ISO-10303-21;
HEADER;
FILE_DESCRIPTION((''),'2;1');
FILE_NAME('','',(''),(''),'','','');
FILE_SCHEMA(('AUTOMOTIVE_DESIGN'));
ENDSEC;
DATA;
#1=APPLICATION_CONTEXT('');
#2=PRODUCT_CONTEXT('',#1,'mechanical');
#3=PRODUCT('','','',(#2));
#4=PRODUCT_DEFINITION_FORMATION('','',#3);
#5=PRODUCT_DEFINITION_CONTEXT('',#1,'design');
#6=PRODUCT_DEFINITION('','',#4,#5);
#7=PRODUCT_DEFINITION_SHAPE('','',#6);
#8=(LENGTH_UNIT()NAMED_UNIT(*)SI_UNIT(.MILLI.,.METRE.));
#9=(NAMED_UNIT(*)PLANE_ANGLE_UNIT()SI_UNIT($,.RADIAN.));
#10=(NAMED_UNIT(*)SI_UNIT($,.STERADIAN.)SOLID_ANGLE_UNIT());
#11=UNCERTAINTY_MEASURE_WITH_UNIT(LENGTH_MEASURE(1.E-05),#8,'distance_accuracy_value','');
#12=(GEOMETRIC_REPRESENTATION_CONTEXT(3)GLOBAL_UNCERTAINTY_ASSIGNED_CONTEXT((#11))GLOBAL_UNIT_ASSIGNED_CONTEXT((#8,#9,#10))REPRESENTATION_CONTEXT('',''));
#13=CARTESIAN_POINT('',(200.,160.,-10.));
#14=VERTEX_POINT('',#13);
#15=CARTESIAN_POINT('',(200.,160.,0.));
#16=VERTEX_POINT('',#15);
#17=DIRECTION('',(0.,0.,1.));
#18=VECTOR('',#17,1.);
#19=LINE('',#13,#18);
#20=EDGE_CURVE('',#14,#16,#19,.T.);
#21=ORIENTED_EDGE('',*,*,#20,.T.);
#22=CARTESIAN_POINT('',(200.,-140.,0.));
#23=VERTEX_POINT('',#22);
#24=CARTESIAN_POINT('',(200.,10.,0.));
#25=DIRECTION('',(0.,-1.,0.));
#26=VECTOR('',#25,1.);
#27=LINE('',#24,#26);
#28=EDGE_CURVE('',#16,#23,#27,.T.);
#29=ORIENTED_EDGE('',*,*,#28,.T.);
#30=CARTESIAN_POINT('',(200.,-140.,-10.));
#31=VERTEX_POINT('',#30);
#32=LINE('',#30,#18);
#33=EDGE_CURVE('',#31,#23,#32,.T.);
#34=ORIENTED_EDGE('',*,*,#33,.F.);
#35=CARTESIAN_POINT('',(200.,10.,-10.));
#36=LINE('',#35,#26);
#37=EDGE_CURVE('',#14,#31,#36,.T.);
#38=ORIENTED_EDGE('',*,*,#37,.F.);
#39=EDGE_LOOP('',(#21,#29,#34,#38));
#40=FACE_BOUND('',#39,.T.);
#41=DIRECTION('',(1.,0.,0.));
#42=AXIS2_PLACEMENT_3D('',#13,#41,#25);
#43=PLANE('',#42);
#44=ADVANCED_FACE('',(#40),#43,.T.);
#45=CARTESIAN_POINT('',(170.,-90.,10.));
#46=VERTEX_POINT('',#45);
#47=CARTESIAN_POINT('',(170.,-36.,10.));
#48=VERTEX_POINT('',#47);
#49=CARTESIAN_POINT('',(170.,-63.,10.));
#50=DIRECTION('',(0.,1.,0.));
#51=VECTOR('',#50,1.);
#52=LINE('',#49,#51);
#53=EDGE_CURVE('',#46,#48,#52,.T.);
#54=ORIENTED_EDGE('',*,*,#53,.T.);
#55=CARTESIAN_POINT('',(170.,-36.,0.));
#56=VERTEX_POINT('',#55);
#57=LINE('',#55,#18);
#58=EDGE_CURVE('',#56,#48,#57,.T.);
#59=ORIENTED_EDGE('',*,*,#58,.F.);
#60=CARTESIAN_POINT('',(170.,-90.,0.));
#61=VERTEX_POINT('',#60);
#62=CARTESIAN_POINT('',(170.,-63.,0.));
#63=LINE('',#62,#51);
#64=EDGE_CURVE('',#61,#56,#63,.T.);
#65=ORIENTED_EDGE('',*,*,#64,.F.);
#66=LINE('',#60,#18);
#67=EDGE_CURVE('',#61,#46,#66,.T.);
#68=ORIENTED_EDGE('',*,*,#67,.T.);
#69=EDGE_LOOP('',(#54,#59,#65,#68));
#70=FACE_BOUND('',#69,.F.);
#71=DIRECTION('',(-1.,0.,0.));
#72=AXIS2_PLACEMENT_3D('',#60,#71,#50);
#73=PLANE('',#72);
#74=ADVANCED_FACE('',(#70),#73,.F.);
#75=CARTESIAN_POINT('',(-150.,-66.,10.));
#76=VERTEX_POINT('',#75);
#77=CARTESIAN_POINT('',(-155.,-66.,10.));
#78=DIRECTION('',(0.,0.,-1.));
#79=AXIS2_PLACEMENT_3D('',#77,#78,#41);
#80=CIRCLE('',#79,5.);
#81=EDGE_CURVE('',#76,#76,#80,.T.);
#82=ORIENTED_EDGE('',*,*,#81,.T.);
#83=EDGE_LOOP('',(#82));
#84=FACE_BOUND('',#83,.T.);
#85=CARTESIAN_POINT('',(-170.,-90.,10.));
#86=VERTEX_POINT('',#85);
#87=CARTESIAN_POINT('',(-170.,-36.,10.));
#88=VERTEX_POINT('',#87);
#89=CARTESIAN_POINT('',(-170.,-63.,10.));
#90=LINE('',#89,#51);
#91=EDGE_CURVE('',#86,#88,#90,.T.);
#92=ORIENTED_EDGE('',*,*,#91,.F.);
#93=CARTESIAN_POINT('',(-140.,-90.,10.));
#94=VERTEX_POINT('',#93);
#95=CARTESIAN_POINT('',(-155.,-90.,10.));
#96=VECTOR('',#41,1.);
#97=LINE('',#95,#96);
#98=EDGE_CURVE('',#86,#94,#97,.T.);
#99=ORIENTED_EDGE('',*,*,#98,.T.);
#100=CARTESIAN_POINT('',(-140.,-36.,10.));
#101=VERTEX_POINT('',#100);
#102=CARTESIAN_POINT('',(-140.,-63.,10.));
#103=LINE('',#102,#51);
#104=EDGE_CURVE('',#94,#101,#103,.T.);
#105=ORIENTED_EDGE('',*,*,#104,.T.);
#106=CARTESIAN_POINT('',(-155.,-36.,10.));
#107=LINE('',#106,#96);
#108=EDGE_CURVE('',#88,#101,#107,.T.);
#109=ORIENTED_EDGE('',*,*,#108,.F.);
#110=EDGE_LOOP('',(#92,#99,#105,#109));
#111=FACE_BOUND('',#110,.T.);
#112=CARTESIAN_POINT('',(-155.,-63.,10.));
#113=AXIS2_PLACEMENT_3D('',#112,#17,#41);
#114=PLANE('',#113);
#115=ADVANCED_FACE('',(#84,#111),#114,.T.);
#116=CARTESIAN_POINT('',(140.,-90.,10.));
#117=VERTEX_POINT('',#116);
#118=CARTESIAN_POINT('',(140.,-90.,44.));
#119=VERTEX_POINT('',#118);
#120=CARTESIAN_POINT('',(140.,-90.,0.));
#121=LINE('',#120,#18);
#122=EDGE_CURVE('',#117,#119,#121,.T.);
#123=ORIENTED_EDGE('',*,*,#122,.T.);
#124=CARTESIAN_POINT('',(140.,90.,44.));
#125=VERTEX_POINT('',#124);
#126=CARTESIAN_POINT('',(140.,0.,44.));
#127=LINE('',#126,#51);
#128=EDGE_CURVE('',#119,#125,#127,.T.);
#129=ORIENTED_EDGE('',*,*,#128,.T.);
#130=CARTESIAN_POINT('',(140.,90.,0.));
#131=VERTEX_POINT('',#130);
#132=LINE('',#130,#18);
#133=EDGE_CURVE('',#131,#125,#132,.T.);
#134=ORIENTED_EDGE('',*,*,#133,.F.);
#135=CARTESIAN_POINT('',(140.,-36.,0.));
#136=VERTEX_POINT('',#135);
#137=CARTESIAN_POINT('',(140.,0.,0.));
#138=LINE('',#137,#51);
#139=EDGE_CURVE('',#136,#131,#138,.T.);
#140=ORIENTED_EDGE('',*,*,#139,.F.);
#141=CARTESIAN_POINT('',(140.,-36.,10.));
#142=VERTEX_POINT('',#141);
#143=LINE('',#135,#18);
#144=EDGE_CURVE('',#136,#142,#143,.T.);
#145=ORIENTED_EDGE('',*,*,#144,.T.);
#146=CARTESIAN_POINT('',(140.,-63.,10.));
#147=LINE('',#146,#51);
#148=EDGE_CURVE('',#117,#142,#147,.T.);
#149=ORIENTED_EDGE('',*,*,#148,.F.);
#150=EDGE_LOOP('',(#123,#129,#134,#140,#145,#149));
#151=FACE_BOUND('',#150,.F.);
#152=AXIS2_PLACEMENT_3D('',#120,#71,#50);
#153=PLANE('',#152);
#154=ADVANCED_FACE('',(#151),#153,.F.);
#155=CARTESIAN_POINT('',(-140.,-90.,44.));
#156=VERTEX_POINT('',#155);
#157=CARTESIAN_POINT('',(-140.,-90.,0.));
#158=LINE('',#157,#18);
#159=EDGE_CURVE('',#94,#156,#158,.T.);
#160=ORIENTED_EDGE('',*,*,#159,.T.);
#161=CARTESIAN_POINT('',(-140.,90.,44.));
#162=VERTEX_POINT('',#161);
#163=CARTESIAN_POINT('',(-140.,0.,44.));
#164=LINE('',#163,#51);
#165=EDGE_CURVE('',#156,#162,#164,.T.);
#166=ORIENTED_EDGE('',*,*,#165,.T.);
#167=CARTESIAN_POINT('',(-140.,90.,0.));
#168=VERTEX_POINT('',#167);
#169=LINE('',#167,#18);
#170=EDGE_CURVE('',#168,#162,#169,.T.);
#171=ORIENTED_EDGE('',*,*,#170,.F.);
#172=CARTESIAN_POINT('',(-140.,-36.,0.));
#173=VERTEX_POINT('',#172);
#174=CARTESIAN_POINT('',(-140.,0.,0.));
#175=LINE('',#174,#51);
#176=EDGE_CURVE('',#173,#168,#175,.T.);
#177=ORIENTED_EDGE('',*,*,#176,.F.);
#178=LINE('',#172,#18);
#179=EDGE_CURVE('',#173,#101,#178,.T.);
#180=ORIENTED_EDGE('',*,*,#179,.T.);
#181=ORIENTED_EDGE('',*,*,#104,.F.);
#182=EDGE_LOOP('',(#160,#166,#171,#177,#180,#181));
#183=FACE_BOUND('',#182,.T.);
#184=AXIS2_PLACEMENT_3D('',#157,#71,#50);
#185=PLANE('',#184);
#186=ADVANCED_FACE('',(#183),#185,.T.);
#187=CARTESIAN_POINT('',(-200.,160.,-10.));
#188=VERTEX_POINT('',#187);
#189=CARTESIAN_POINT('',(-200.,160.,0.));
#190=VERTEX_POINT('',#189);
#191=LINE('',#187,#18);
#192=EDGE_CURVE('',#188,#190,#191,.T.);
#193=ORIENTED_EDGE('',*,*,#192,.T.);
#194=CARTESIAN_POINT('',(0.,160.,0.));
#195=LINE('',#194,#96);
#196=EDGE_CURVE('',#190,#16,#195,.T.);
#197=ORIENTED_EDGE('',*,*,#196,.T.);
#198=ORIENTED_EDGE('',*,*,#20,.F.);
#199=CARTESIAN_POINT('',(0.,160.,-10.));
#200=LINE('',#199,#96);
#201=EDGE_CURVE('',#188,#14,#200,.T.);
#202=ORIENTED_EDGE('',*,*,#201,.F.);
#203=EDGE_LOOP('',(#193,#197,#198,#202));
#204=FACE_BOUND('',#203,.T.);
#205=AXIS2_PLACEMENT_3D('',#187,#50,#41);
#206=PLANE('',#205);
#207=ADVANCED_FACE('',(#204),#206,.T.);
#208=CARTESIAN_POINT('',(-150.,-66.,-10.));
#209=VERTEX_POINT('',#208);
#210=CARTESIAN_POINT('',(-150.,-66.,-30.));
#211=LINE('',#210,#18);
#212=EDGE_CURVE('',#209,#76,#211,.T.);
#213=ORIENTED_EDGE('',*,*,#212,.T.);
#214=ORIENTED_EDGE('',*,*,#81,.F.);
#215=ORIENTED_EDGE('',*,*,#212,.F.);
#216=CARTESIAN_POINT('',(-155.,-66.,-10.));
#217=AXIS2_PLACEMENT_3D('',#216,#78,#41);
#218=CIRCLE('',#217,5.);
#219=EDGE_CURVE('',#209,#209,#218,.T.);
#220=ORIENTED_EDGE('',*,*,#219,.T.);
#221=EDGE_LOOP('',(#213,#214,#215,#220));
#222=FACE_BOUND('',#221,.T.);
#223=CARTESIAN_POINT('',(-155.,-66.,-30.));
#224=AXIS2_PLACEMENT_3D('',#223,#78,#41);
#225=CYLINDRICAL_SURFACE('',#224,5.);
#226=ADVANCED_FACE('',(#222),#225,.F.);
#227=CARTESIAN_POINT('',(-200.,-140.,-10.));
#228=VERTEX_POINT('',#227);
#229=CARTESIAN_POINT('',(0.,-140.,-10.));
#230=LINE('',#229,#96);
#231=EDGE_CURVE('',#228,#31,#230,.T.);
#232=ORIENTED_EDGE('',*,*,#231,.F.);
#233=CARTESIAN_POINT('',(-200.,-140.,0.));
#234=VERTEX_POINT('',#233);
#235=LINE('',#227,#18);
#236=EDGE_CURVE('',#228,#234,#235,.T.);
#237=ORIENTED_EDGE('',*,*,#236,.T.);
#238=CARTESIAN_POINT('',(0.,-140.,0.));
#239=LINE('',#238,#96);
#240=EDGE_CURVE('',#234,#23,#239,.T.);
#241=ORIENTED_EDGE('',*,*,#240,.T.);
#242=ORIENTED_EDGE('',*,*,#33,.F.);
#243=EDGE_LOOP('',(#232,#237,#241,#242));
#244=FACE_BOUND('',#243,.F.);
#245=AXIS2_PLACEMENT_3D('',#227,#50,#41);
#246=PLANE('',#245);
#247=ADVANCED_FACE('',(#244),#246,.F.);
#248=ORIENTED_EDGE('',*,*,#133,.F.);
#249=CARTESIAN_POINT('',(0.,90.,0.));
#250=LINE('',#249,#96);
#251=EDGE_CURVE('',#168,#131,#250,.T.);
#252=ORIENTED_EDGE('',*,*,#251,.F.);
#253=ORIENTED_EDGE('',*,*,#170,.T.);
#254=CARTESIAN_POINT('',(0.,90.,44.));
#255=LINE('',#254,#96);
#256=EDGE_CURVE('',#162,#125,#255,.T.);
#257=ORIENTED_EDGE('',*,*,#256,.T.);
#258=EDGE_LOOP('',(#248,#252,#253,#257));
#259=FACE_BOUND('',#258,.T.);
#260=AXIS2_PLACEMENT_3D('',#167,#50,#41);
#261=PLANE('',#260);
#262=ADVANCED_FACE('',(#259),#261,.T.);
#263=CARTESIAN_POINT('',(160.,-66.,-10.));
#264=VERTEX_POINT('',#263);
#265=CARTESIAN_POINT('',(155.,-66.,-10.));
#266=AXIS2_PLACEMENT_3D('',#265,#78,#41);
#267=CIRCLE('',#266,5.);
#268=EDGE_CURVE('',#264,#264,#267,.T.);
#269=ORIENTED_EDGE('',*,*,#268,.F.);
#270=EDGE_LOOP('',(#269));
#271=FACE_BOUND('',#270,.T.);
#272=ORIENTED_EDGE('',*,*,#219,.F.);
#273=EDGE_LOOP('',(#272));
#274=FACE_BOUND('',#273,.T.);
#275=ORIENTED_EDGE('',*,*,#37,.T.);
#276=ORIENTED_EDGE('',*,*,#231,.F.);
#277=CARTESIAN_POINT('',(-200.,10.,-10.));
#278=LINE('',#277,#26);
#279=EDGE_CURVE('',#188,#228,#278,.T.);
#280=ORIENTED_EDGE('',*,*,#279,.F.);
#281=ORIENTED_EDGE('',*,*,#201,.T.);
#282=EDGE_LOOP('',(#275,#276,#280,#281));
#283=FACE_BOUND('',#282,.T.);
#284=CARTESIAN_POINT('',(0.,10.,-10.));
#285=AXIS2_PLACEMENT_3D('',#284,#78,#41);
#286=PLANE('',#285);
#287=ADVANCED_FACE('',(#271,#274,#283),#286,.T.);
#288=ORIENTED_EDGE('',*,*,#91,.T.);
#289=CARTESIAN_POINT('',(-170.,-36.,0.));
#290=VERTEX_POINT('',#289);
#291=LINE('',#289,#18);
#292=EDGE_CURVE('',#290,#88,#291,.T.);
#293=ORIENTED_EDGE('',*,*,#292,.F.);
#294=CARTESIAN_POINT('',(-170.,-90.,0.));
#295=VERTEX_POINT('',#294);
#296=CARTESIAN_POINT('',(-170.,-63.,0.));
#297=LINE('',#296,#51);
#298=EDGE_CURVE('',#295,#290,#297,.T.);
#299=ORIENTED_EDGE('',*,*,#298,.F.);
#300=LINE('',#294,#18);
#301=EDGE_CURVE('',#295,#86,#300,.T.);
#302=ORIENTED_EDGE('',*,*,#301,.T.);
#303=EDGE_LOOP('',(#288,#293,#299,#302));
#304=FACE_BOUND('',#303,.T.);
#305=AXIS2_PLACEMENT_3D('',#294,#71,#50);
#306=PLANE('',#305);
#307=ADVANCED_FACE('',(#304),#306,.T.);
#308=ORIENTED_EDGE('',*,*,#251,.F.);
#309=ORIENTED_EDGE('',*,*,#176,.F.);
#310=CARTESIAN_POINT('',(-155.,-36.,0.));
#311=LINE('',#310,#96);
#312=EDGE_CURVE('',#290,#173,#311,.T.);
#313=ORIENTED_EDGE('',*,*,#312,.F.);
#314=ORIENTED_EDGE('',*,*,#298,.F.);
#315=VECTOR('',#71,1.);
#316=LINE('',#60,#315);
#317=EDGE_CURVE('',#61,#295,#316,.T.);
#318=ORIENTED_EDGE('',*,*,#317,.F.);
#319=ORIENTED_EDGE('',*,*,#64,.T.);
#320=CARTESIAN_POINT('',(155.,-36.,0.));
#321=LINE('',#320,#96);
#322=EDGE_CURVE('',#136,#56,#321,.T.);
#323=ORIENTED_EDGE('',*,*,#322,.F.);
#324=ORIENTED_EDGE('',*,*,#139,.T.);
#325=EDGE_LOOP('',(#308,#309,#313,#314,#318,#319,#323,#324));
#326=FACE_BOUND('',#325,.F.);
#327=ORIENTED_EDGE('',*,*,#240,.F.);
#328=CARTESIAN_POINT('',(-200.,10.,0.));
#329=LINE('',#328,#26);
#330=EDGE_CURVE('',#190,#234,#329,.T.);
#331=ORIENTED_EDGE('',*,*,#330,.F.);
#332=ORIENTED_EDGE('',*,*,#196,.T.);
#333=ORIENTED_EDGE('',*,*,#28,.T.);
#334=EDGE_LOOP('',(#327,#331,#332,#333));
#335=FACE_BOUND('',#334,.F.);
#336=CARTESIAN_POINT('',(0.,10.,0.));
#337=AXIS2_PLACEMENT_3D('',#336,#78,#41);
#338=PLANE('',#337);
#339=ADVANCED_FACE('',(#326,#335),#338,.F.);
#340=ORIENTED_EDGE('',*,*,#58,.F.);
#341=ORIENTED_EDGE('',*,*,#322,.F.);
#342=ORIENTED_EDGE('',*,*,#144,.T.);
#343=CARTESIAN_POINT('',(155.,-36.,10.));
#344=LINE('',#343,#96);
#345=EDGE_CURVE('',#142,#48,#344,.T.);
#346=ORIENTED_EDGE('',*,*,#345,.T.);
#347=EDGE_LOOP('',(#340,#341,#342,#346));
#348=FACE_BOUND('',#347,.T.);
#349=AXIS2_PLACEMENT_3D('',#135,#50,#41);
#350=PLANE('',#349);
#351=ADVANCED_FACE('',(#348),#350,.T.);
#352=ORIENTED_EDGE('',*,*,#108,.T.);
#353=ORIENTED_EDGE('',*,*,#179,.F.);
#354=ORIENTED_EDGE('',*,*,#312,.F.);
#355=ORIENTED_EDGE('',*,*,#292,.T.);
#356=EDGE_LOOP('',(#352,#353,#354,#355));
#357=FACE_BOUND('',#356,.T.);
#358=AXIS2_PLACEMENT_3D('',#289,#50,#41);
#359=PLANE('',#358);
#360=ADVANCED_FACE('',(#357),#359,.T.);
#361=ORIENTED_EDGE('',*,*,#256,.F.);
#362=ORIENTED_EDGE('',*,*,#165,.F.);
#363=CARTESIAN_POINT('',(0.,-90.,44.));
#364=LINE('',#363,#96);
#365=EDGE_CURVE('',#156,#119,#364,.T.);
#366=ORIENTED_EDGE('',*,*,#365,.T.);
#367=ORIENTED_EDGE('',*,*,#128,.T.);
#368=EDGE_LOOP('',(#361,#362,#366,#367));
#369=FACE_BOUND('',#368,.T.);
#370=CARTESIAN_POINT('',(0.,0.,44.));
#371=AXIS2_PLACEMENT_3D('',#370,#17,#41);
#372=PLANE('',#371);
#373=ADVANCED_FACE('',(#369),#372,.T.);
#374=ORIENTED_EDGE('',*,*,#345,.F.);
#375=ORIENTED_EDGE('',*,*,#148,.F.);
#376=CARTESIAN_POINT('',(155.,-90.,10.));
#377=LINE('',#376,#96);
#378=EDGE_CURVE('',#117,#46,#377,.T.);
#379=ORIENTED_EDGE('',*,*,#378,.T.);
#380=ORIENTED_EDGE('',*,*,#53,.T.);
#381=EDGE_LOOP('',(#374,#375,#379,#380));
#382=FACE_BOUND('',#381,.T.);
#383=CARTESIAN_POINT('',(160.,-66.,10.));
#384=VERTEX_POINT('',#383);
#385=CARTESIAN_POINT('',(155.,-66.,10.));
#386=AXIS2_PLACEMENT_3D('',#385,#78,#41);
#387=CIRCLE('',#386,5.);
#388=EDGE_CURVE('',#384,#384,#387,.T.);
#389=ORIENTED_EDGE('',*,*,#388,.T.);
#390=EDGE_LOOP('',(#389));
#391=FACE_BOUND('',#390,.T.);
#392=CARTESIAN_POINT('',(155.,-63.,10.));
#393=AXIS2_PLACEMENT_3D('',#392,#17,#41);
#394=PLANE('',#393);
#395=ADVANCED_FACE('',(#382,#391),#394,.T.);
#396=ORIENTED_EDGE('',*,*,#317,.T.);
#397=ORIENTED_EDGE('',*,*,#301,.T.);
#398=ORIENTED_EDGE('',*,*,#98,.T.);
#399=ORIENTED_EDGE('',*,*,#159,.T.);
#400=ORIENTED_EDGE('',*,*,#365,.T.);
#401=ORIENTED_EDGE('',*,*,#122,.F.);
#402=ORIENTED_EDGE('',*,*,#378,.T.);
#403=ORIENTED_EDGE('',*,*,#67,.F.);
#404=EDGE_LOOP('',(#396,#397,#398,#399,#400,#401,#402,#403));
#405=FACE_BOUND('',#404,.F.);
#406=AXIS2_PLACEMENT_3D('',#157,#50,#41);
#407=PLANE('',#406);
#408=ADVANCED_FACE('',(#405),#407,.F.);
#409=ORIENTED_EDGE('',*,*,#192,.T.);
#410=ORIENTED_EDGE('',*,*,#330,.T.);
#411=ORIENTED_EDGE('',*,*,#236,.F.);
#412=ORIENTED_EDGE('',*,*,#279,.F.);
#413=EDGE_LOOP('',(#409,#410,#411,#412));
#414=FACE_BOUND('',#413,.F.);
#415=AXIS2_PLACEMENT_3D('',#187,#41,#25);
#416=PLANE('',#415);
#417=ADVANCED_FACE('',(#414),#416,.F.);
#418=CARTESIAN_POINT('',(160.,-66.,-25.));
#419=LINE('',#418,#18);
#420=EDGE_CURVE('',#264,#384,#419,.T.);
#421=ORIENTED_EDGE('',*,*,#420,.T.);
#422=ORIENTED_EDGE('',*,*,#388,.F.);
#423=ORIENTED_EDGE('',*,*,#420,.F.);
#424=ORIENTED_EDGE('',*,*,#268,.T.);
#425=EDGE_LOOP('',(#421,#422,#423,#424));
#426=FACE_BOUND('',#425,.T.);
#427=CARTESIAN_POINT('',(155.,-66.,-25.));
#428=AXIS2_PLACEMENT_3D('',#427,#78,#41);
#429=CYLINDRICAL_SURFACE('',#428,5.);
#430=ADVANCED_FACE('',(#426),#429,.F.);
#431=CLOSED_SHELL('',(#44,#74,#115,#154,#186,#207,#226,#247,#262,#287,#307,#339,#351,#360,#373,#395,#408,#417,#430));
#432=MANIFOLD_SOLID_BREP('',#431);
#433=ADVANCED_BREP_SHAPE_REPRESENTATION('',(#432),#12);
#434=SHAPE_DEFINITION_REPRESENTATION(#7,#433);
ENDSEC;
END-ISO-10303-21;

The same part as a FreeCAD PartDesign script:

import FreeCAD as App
import Part
import Sketcher


def add_polygon(sketch, points):
    """Adds a closed chain of lines whose ends are joined by coincident constraints."""
    first, n = sketch.GeometryCount, len(points)
    for a, b in zip(points, points[1:] + points[:1]):
        sketch.addGeometry(Part.LineSegment(App.Vector(*a, 0), App.Vector(*b, 0)), False)
    for i in range(n):
        sketch.addConstraint(Sketcher.Constraint("Coincident", first + i, 2, first + (i + 1) % n, 1))

doc = App.newDocument("Part")
params = doc.addObject("Spreadsheet::Sheet", "Params")
for row, (alias, value) in enumerate([
    ("sketch1_diameter", "10 mm"),
    ("pad1_length", "50 mm"),
    ("sketch2_diameter", "10 mm"),
    ("pad2_length", "50 mm"),
    ("sketch3_width", "280 mm"),
    ("sketch3_height", "180 mm"),
    ("pad3_length", "44 mm"),
    ("sketch4_width", "30 mm"),
    ("sketch4_height", "54 mm"),
    ("pad4_length", "10 mm"),
    ("sketch5_width", "400 mm"),
    ("sketch5_height", "300 mm"),
    ("pad5_length", "10 mm"),
], start=1):
    params.set(f"A{row}", alias)
    params.set(f"B{row}", "=" + value)
    params.setAlias(f"B{row}", alias)

body = doc.addObject("PartDesign::Body", "Body")

sketch1 = body.newObject("Sketcher::SketchObject", "Sketch")
sketch1.AttachmentSupport = (doc.getObject("XY_Plane"), [""])
sketch1.MapMode = "FlatFace"
sketch1.AttachmentOffset = App.Placement(App.Vector(0, 0, -30), App.Rotation())
sketch1.addGeometry(Part.Circle(App.Vector(-155, -66, 0), App.Vector(0, 0, 1), 5), False)
sketch1.addConstraint(Sketcher.Constraint("Diameter", 0, 10.0))
sketch1.addConstraint(Sketcher.Constraint("DistanceX", 0, 3, -1, 1, 155.0))
sketch1.addConstraint(Sketcher.Constraint("DistanceY", 0, 3, -1, 1, 66.0))
sketch1.setExpression("Constraints[0]", "Params.sketch1_diameter")
pad1 = body.newObject("PartDesign::Pad", "Pad")
pad1.Profile = sketch1
pad1.setExpression("Length", "Params.pad1_length")
body2 = doc.addObject("PartDesign::Body", "Body001")

sketch2 = body2.newObject("Sketcher::SketchObject", "Sketch001")
sketch2.AttachmentSupport = (doc.getObject("XY_Plane001"), [""])
sketch2.MapMode = "FlatFace"
sketch2.AttachmentOffset = App.Placement(App.Vector(0, 0, -25), App.Rotation())
sketch2.addGeometry(Part.Circle(App.Vector(155, -66, 0), App.Vector(0, 0, 1), 5), False)
sketch2.addConstraint(Sketcher.Constraint("Diameter", 0, 10.0))
sketch2.addConstraint(Sketcher.Constraint("DistanceX", -1, 1, 0, 3, 155.0))
sketch2.addConstraint(Sketcher.Constraint("DistanceY", 0, 3, -1, 1, 66.0))
sketch2.setExpression("Constraints[0]", "Params.sketch2_diameter")
pad2 = body2.newObject("PartDesign::Pad", "Pad001")
pad2.Profile = sketch2
pad2.setExpression("Length", "Params.pad2_length")
body3 = doc.addObject("PartDesign::Body", "Body002")

sketch3 = body3.newObject("Sketcher::SketchObject", "Sketch002")
sketch3.AttachmentSupport = (doc.getObject("XY_Plane002"), [""])
sketch3.MapMode = "FlatFace"
add_polygon(sketch3, [(-140, 90), (-140, -90), (140, -90), (140, 90)])
sketch3.addConstraint(Sketcher.Constraint("Vertical", 0))
sketch3.addConstraint(Sketcher.Constraint("Horizontal", 1))
sketch3.addConstraint(Sketcher.Constraint("Vertical", 2))
sketch3.addConstraint(Sketcher.Constraint("Horizontal", 3))
sketch3.addConstraint(Sketcher.Constraint("Symmetric", 0, 2, 2, 2, -1, 1))
sketch3.addConstraint(Sketcher.Constraint("DistanceX", 1, 1, 1, 2, 280.0))
sketch3.addConstraint(Sketcher.Constraint("DistanceY", 0, 2, 0, 1, 180.0))
sketch3.setExpression("Constraints[9]", "Params.sketch3_width")
sketch3.setExpression("Constraints[10]", "Params.sketch3_height")
pad3 = body3.newObject("PartDesign::Pad", "Pad002")
pad3.Profile = sketch3
pad3.setExpression("Length", "Params.pad3_length")
body4 = doc.addObject("PartDesign::Body", "Body003")
body4.AllowCompound = True

sketch4 = body4.newObject("Sketcher::SketchObject", "Sketch003")
sketch4.AttachmentSupport = (doc.getObject("XY_Plane003"), [""])
sketch4.MapMode = "FlatFace"
add_polygon(sketch4, [(140, -36), (140, -90), (170, -90), (170, -36)])
add_polygon(sketch4, [(-170, -36), (-170, -90), (-140, -90), (-140, -36)])
sketch4.addConstraint(Sketcher.Constraint("Vertical", 0))
sketch4.addConstraint(Sketcher.Constraint("Horizontal", 1))
sketch4.addConstraint(Sketcher.Constraint("Vertical", 2))
sketch4.addConstraint(Sketcher.Constraint("Horizontal", 3))
sketch4.addConstraint(Sketcher.Constraint("Vertical", 4))
sketch4.addConstraint(Sketcher.Constraint("Horizontal", 5))
sketch4.addConstraint(Sketcher.Constraint("Vertical", 6))
sketch4.addConstraint(Sketcher.Constraint("Horizontal", 7))
sketch4.addConstraint(Sketcher.Constraint("Symmetric", 1, 2, 4, 2, -2))
sketch4.addConstraint(Sketcher.Constraint("Symmetric", 3, 2, 6, 2, -2))
sketch4.addConstraint(Sketcher.Constraint("DistanceX", 1, 1, 1, 2, 30.0))
sketch4.addConstraint(Sketcher.Constraint("DistanceY", 0, 2, 0, 1, 54.0))
sketch4.addConstraint(Sketcher.Constraint("DistanceX", -1, 1, 0, 2, 140.0))
sketch4.addConstraint(Sketcher.Constraint("DistanceY", 0, 2, -1, 1, 90.0))
sketch4.setExpression("Constraints[18]", "Params.sketch4_width")
sketch4.setExpression("Constraints[19]", "Params.sketch4_height")
pad4 = body4.newObject("PartDesign::Pad", "Pad003")
pad4.Profile = sketch4
pad4.setExpression("Length", "Params.pad4_length")
doc.recompute()

boolean = body4.newObject("PartDesign::Boolean", "Boolean")
boolean.Type = "Fuse"
boolean.addObjects([body3])
body5 = doc.addObject("PartDesign::Body", "Body004")

sketch5 = body5.newObject("Sketcher::SketchObject", "Sketch004")
sketch5.AttachmentSupport = (doc.getObject("XY_Plane004"), [""])
sketch5.MapMode = "FlatFace"
sketch5.AttachmentOffset = App.Placement(App.Vector(0, 0, -10), App.Rotation())
add_polygon(sketch5, [(-200, -140), (-200, 160), (200, 160), (200, -140)])
sketch5.addConstraint(Sketcher.Constraint("Vertical", 0))
sketch5.addConstraint(Sketcher.Constraint("Horizontal", 1))
sketch5.addConstraint(Sketcher.Constraint("Vertical", 2))
sketch5.addConstraint(Sketcher.Constraint("Horizontal", 3))
sketch5.addConstraint(Sketcher.Constraint("DistanceX", 1, 1, 1, 2, 400.0))
sketch5.addConstraint(Sketcher.Constraint("DistanceY", 0, 1, 0, 2, 300.0))
sketch5.addConstraint(Sketcher.Constraint("DistanceX", 0, 2, -1, 1, 200.0))
sketch5.addConstraint(Sketcher.Constraint("DistanceY", -1, 1, 0, 2, 160.0))
sketch5.setExpression("Constraints[8]", "Params.sketch5_width")
sketch5.setExpression("Constraints[9]", "Params.sketch5_height")
pad5 = body5.newObject("PartDesign::Pad", "Pad004")
pad5.Profile = sketch5
pad5.setExpression("Length", "Params.pad5_length")
doc.recompute()

boolean2 = body5.newObject("PartDesign::Boolean", "Boolean001")
boolean2.Type = "Fuse"
boolean2.addObjects([body4])
doc.recompute()

boolean3 = body5.newObject("PartDesign::Boolean", "Boolean002")
boolean3.Type = "Cut"
boolean3.addObjects([body2])
doc.recompute()

boolean4 = body5.newObject("PartDesign::Boolean", "Boolean003")
boolean4.Type = "Cut"
boolean4.addObjects([body])

doc.recompute()
